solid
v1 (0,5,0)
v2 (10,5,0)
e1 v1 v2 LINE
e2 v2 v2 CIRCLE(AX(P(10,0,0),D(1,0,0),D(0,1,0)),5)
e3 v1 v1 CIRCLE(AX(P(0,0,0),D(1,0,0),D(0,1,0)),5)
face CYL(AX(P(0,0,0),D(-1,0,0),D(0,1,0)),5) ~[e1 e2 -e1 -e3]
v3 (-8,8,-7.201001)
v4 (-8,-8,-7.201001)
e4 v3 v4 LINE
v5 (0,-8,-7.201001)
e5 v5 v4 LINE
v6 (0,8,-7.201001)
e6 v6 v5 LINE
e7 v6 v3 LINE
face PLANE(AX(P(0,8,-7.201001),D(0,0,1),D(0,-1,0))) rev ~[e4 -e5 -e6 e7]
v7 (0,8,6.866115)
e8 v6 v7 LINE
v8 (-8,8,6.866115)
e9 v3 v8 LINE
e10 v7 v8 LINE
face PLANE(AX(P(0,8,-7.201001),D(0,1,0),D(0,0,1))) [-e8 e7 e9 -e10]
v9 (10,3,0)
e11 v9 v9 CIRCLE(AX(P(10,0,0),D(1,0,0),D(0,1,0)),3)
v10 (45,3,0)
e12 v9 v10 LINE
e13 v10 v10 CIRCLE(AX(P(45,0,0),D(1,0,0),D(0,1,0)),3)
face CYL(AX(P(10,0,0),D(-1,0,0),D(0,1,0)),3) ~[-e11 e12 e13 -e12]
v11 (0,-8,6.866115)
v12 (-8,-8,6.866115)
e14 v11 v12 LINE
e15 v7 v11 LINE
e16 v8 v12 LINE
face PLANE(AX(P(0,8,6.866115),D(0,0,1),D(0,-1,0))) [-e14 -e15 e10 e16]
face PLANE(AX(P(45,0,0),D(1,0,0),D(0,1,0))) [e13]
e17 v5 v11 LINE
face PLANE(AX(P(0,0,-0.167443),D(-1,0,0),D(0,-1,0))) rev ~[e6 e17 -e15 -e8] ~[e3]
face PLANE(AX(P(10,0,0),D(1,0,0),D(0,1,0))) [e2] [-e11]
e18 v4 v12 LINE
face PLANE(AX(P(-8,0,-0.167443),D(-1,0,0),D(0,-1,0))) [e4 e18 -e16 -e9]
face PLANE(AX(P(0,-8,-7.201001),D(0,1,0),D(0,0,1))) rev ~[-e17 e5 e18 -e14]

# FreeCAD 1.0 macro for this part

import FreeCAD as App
import Part
import Sketcher

V = App.Vector
Q = App.Units.Quantity


def add_polygon(sketch, points):
    """Adds a closed chain of lines whose ends are joined by coincident constraints."""
    first, n = sketch.GeometryCount, len(points)
    for a, b in zip(points, points[1:] + points[:1]):
        sketch.addGeometry(Part.LineSegment(App.Vector(*a, 0), App.Vector(*b, 0)), False)
    for i in range(n):
        sketch.addConstraint(Sketcher.Constraint("Coincident", first + i, 2, first + (i + 1) % n, 1))

doc = App.newDocument("Part")
params = doc.addObject("Spreadsheet::Sheet", "Params")
for row, (alias, value) in enumerate([
    ("sketch1_diameter", "10 mm"),
    ("pad1_length", "10 mm"),
    ("sketch2_diameter", "6 mm"),
    ("pad2_length", "35 mm"),
    ("sketch3_width", "16 mm"),
    ("pad3_length", "8 mm"),
], start=1):
    params.set(f"A{row}", alias)
    params.set(f"B{row}", "=" + value)
    params.setAlias(f"B{row}", alias)

body = doc.addObject("PartDesign::Body", "Body")

sketch1 = body.newObject("Sketcher::SketchObject", "Sketch")
sketch1.AttachmentSupport = (doc.getObject("YZ_Plane"), [""])
sketch1.MapMode = "FlatFace"
sketch1.addGeometry(Part.Circle(V(0, 0, 0), V(0, 0, 1), 5), False)
sketch1.addConstraint([
    Sketcher.Constraint("Coincident", 0, 3, -1, 1),
    Sketcher.Constraint("Diameter", 0, Q("10 mm")),
])
sketch1.setExpression("Constraints[1]", "Params.sketch1_diameter")
pad1 = body.newObject("PartDesign::Pad", "Pad")
pad1.Profile = sketch1
pad1.setExpression("Length", "Params.pad1_length")

sketch2 = body.newObject("Sketcher::SketchObject", "Sketch001")
sketch2.AttachmentSupport = (doc.getObject("YZ_Plane"), [""])
sketch2.MapMode = "FlatFace"
sketch2.AttachmentOffset = App.Placement(V(0, 0, 10), App.Rotation())
sketch2.addGeometry(Part.Circle(V(0, 0, 0), V(0, 0, 1), 3), False)
sketch2.addConstraint([
    Sketcher.Constraint("Coincident", 0, 3, -1, 1),
    Sketcher.Constraint("Diameter", 0, Q("6 mm")),
])
sketch2.setExpression("Constraints[1]", "Params.sketch2_diameter")
pad2 = body.newObject("PartDesign::Pad", "Pad001")
pad2.Profile = sketch2
pad2.setExpression("Length", "Params.pad2_length")

sketch3 = body.newObject("Sketcher::SketchObject", "Sketch002")
sketch3.AttachmentSupport = (doc.getObject("YZ_Plane"), [""])
sketch3.MapMode = "FlatFace"
add_polygon(sketch3, [(8, 7), (8, -7), (-8, -7), (-8, 7)])
sketch3.addConstraint([
    Sketcher.Constraint("Vertical", 0),
    Sketcher.Constraint("Horizontal", 1),
    Sketcher.Constraint("Vertical", 2),
    Sketcher.Constraint("Horizontal", 3),
    Sketcher.Constraint("DistanceX", 1, 2, 1, 1, Q("16 mm")),
    Sketcher.Constraint("DistanceX", -1, 1, 0, 2, Q("8 mm")),
    Sketcher.Constraint("DistanceY", 0, 2, -1, 1, Q("7.201001 mm")),
    Sketcher.Constraint("DistanceY", 0, 2, 0, 1, Q("14.067116 mm")),
])
sketch3.setExpression("Constraints[8]", "Params.sketch3_width")
pad3 = body.newObject("PartDesign::Pad", "Pad002")
pad3.Profile = sketch3
pad3.setExpression("Length", "Params.pad3_length")
pad3.Reversed = True

doc.recompute()
